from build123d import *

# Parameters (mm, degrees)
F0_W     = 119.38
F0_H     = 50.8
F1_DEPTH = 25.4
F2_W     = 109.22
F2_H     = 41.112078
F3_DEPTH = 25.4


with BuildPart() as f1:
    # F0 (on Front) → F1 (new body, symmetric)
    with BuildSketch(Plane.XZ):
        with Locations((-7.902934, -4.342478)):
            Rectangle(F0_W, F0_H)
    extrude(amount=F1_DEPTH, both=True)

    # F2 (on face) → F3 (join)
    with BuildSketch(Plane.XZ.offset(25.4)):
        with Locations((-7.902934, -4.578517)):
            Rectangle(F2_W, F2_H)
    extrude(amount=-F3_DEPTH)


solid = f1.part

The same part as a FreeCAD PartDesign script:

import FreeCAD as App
import Part
import Sketcher
from FreeCAD import Vector
Q = App.Units.Quantity

doc = App.newDocument("Part")
params = doc.addObject("Spreadsheet::Sheet", "Params")
for row, (alias, value) in enumerate([
    ("sketch1_height", "2 in"),
    ("sketch1_width", "4.7 in"),
    ("pad1_length", "2 in"),
    ("sketch2_width", "4.3 in"),
    ("pad2_length", "1 in"),
], start=1):
    params.set(f"A{row}", alias)
    params.set(f"B{row}", "=" + value)
    params.setAlias(f"B{row}", alias)

body = doc.addObject("PartDesign::Body", "Body")

# Sketch on XZ plane
sketch1 = body.newObject("Sketcher::SketchObject", "Sketch")
sketch1.AttachmentSupport = (doc.getObject("XZ_Plane"), [""])
sketch1.MapMode = "FlatFace"
sketch1.addGeometry([
    Part.LineSegment(Vector(-67.592934, 21.057522, 0), Vector(-67.592934, -29.742478, 0)),
    Part.LineSegment(Vector(-67.592934, -29.742478, 0), Vector(51.787066, -29.742478, 0)),
    Part.LineSegment(Vector(51.787066, -29.742478, 0), Vector(51.787066, 21.057522, 0)),
    Part.LineSegment(Vector(51.787066, 21.057522, 0), Vector(-67.592934, 21.057522, 0)),
], False)
sketch1.addConstraint([
    Sketcher.Constraint("Coincident", 0, 2, 1, 1),
    Sketcher.Constraint("Coincident", 1, 2, 2, 1),
    Sketcher.Constraint("Coincident", 2, 2, 3, 1),
    Sketcher.Constraint("Coincident", 3, 2, 0, 1),
    Sketcher.Constraint("Vertical", 0),
    Sketcher.Constraint("Horizontal", 1),
    Sketcher.Constraint("Vertical", 2),
    Sketcher.Constraint("Horizontal", 3),
    Sketcher.Constraint("DistanceY", 0, 2, 0, 1, Q("2 in")),
    Sketcher.Constraint("DistanceX", 1, 1, 1, 2, Q("4.7 in")),
    Sketcher.Constraint("DistanceY", -1, 1, 2, 2, Q("21.057522 mm")),
    Sketcher.Constraint("DistanceX", 0, 2, -1, 1, Q("67.592934 mm")),
])
sketch1.setExpression("Constraints[8]", "Params.sketch1_height")
sketch1.setExpression("Constraints[9]", "Params.sketch1_width")
pad1 = body.newObject("PartDesign::Pad", "Pad")
pad1.Profile = sketch1
pad1.setExpression("Length", "Params.pad1_length")
pad1.Midplane = True

# Sketch on XZ plane
sketch2 = body.newObject("Sketcher::SketchObject", "Sketch001")
sketch2.AttachmentSupport = (doc.getObject("XZ_Plane"), [""])
sketch2.MapMode = "FlatFace"
sketch2.AttachmentOffset = App.Placement(Vector(0, 0, 1 * 25.4), App.Rotation())
sketch2.addGeometry([
    Part.LineSegment(Vector(-62.512934, 15.977522, 0), Vector(-62.512934, -25.134556, 0)),
    Part.LineSegment(Vector(-62.512934, -25.134556, 0), Vector(46.707066, -25.134556, 0)),
    Part.LineSegment(Vector(46.707066, -25.134556, 0), Vector(46.707066, 15.977522, 0)),
    Part.LineSegment(Vector(46.707066, 15.977522, 0), Vector(-62.512934, 15.977522, 0)),
], False)
sketch2.addConstraint([
    Sketcher.Constraint("Coincident", 0, 2, 1, 1),
    Sketcher.Constraint("Coincident", 1, 2, 2, 1),
    Sketcher.Constraint("Coincident", 2, 2, 3, 1),
    Sketcher.Constraint("Coincident", 3, 2, 0, 1),
    Sketcher.Constraint("Vertical", 0),
    Sketcher.Constraint("Horizontal", 1),
    Sketcher.Constraint("Vertical", 2),
    Sketcher.Constraint("Horizontal", 3),
    Sketcher.Constraint("DistanceX", 1, 1, 1, 2, Q("4.3 in")),
    Sketcher.Constraint("DistanceY", 0, 2, 0, 1, Q("41.112078 mm")),
    Sketcher.Constraint("DistanceX", 0, 2, -1, 1, Q("62.512934 mm")),
    Sketcher.Constraint("DistanceY", 0, 2, -1, 1, Q("25.134556 mm")),
])
sketch2.setExpression("Constraints[8]", "Params.sketch2_width")
pad2 = body.newObject("PartDesign::Pad", "Pad001")
pad2.Profile = sketch2
pad2.setExpression("Length", "Params.pad2_length")
pad2.Reversed = True

doc.recompute()
